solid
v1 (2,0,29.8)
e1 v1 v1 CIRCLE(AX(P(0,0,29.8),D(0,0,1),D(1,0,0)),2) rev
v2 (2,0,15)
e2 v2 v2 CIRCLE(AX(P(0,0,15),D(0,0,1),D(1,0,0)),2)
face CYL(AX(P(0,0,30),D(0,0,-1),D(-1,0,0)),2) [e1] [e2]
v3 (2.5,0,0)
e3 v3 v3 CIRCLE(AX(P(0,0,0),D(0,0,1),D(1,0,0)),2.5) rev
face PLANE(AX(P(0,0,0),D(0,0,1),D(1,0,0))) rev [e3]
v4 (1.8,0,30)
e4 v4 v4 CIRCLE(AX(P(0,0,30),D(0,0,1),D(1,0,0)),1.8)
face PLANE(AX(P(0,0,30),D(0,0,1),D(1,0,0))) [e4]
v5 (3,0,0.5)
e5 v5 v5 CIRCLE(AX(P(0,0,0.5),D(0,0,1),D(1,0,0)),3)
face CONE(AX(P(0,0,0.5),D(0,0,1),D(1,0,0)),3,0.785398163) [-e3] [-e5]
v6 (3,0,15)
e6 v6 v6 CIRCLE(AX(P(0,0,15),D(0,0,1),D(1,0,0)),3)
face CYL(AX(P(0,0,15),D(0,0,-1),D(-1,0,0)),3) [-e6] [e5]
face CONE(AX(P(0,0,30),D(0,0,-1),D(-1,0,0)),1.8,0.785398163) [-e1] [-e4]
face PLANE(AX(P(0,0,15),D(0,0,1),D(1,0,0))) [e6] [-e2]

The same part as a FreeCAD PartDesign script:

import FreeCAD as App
import Part
import Sketcher
from FreeCAD import Vector
Q = App.Units.Quantity


def edges_at(feature, points):
    """Names of the edges that pass closest to the given points."""
    edges = feature.Shape.Edges
    near = lambda p: min(range(len(edges)), key=lambda i: edges[i].distToShape(Part.Vertex(*p))[0])
    return sorted({f"Edge{near(p) + 1}" for p in points})

doc = App.newDocument("Part")
params = doc.addObject("Spreadsheet::Sheet", "Params")
for row, (alias, value) in enumerate([
    ("sketch1_diameter", "6 mm"),
    ("pad1_length", "15 mm"),
    ("sketch2_diameter", "4 mm"),
    ("pad2_length", "15 mm"),
    ("chamfer_size", "0.2 mm"),
    ("chamfer2_size", "0.5 mm"),
], start=1):
    params.set(f"A{row}", alias)
    params.set(f"B{row}", "=" + value)
    params.setAlias(f"B{row}", alias)

body = doc.addObject("PartDesign::Body", "Body")

# Sketch on XY plane
sketch1 = body.newObject("Sketcher::SketchObject", "Sketch")
sketch1.AttachmentSupport = (doc.getObject("XY_Plane"), [""])
sketch1.MapMode = "FlatFace"
sketch1.addGeometry(Part.Circle(Vector(0, 0, 0), Vector(0, 0, 1), 3), False)
sketch1.addConstraint(Sketcher.Constraint("Coincident", 0, 3, -1, 1))
sketch1.addConstraint(Sketcher.Constraint("Diameter", 0, Q("6 mm")))
sketch1.setExpression("Constraints[1]", "Params.sketch1_diameter")
pad1 = body.newObject("PartDesign::Pad", "Pad")
pad1.Profile = sketch1
pad1.setExpression("Length", "Params.pad1_length")

# Sketch on XY plane
sketch2 = body.newObject("Sketcher::SketchObject", "Sketch001")
sketch2.AttachmentSupport = (doc.getObject("XY_Plane"), [""])
sketch2.MapMode = "FlatFace"
sketch2.AttachmentOffset = App.Placement(Vector(0, 0, 15), App.Rotation())
sketch2.addGeometry(Part.Circle(Vector(0, 0, 0), Vector(0, 0, 1), 2), False)
sketch2.addConstraint(Sketcher.Constraint("Coincident", 0, 3, -1, 1))
sketch2.addConstraint(Sketcher.Constraint("Diameter", 0, Q("4 mm")))
sketch2.setExpression("Constraints[1]", "Params.sketch2_diameter")
pad2 = body.newObject("PartDesign::Pad", "Pad001")
pad2.Profile = sketch2
pad2.setExpression("Length", "Params.pad2_length")
doc.recompute()

chamfer = body.newObject("PartDesign::Chamfer", "Chamfer")
chamfer.Base = (pad2, edges_at(pad2, [(-2, 0, 30)]))
chamfer.setExpression("Size", "Params.chamfer_size")
doc.recompute()

chamfer2 = body.newObject("PartDesign::Chamfer", "Chamfer001")
chamfer2.Base = (chamfer, edges_at(chamfer, [(-3, 0, 0)]))
chamfer2.setExpression("Size", "Params.chamfer2_size")

doc.recompute()
